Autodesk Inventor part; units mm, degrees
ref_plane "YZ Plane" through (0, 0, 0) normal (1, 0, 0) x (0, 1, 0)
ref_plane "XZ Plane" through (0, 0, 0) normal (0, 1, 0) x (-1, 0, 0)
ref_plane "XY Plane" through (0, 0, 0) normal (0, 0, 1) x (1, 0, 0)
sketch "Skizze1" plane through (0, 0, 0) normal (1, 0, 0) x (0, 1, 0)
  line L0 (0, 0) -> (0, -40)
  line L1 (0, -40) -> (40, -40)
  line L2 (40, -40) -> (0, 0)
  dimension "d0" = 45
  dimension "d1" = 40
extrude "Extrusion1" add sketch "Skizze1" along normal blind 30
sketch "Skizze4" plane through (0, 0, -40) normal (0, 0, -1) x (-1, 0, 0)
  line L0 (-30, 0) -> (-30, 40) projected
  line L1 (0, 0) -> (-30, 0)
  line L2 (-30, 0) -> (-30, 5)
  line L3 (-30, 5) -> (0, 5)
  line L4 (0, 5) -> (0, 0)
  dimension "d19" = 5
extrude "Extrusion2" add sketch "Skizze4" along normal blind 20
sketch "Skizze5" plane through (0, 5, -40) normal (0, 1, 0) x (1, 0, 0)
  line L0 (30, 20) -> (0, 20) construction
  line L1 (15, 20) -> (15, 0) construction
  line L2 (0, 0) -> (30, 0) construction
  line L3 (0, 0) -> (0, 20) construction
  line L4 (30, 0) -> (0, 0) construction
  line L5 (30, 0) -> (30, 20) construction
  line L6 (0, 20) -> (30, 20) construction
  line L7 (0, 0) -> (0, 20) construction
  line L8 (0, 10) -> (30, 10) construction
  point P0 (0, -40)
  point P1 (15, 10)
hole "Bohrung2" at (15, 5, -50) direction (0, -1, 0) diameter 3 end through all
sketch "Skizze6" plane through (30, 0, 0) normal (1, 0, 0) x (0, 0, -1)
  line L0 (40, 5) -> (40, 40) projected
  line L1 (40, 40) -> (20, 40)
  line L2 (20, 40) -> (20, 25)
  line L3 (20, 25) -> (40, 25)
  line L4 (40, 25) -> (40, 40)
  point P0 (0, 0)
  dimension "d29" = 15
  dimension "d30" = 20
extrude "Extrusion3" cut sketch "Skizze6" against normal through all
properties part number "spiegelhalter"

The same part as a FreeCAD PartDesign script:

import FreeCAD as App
import Part
import Sketcher

V = App.Vector


def add_polygon(sketch, points):
    """Adds a closed chain of lines whose ends are joined by coincident constraints."""
    first, n = sketch.GeometryCount, len(points)
    for a, b in zip(points, points[1:] + points[:1]):
        sketch.addGeometry(Part.LineSegment(App.Vector(*a, 0), App.Vector(*b, 0)), False)
    for i in range(n):
        sketch.addConstraint(Sketcher.Constraint("Coincident", first + i, 2, first + (i + 1) % n, 1))

doc = App.newDocument("Part")
body = doc.addObject("PartDesign::Body", "Body")

# Sketch on YZ plane
sketch1 = body.newObject("Sketcher::SketchObject", "Sketch")
sketch1.AttachmentSupport = (doc.getObject("YZ_Plane"), [""])
sketch1.MapMode = "FlatFace"
add_polygon(sketch1, [(40, -40), (0, 0), (0, -40)])  # lines 0-2
sketch1.addConstraint([
    Sketcher.Constraint("Vertical", 1),
    Sketcher.Constraint("Horizontal", 2),
    Sketcher.Constraint("Coincident", 0, 2, -1, 1),
    Sketcher.Constraint("Equal", 2, 1),
    Sketcher.Constraint("DistanceX", 2, 1, 2, 2, 40.0),
])
pad1 = body.newObject("PartDesign::Pad", "Pad")
pad1.Profile = sketch1
pad1.Length = 30

# Sketch on XY plane
sketch2 = body.newObject("Sketcher::SketchObject", "Sketch001")
sketch2.AttachmentSupport = (doc.getObject("XY_Plane"), [""])
sketch2.MapMode = "FlatFace"
sketch2.AttachmentOffset = App.Placement(V(0, 0, -40), App.Rotation())
add_polygon(sketch2, [(30, 5), (30, 0), (0, 0), (0, 5)])  # lines 0-3
sketch2.addConstraint([
    Sketcher.Constraint("Vertical", 0),
    Sketcher.Constraint("Horizontal", 1),
    Sketcher.Constraint("Vertical", 2),
    Sketcher.Constraint("Horizontal", 3),
    Sketcher.Constraint("Coincident", 1, 2, -1, 1),
    Sketcher.Constraint("DistanceY", 0, 2, 0, 1, 5.0),
    Sketcher.Constraint("DistanceX", 1, 2, 1, 1, 30.0),
])
pad2 = body.newObject("PartDesign::Pad", "Pad001")
pad2.Profile = sketch2
pad2.Length = 20
pad2.Reversed = True

# Sketch on XZ plane
sketch3 = body.newObject("Sketcher::SketchObject", "Sketch002")
sketch3.AttachmentSupport = (doc.getObject("XZ_Plane"), [""])
sketch3.MapMode = "FlatFace"
sketch3.AttachmentOffset = App.Placement(V(0, 0, -5), App.Rotation())
sketch3.addGeometry(Part.Circle(V(15, -50, 0), V(0, 0, 1), 1.5), False)
sketch3.addConstraint([
    Sketcher.Constraint("Diameter", 0, 3.0),
    Sketcher.Constraint("DistanceX", -1, 1, 0, 3, 15.0),
    Sketcher.Constraint("DistanceY", 0, 3, -1, 1, 50.0),
])
doc.recompute()
hole = body.newObject("PartDesign::Hole", "Hole")
hole.Profile = sketch3
hole.ThreadType = "None"
hole.Diameter = 3
hole.DepthType = "ThroughAll"
hole.Reversed = True

# Sketch on YZ plane
sketch4 = body.newObject("Sketcher::SketchObject", "Sketch003")
sketch4.AttachmentSupport = (doc.getObject("YZ_Plane"), [""])
sketch4.MapMode = "FlatFace"
sketch4.AttachmentOffset = App.Placement(V(0, 0, 30), App.Rotation())
add_polygon(sketch4, [(25, -20), (25, -40), (40, -40), (40, -20)])  # lines 0-3
sketch4.addConstraint([
    Sketcher.Constraint("Vertical", 0),
    Sketcher.Constraint("Horizontal", 1),
    Sketcher.Constraint("Vertical", 2),
    Sketcher.Constraint("Horizontal", 3),
    Sketcher.Constraint("DistanceX", 1, 1, 1, 2, 15.0),
    Sketcher.Constraint("DistanceY", 0, 2, 0, 1, 20.0),
    Sketcher.Constraint("DistanceY", 2, 2, -1, 1, 20.0),
    Sketcher.Constraint("DistanceX", -1, 1, 0, 2, 25.0),
])
pocket1 = body.newObject("PartDesign::Pocket", "Pocket")
pocket1.Profile = sketch4
pocket1.Type = "ThroughAll"

doc.recompute()
